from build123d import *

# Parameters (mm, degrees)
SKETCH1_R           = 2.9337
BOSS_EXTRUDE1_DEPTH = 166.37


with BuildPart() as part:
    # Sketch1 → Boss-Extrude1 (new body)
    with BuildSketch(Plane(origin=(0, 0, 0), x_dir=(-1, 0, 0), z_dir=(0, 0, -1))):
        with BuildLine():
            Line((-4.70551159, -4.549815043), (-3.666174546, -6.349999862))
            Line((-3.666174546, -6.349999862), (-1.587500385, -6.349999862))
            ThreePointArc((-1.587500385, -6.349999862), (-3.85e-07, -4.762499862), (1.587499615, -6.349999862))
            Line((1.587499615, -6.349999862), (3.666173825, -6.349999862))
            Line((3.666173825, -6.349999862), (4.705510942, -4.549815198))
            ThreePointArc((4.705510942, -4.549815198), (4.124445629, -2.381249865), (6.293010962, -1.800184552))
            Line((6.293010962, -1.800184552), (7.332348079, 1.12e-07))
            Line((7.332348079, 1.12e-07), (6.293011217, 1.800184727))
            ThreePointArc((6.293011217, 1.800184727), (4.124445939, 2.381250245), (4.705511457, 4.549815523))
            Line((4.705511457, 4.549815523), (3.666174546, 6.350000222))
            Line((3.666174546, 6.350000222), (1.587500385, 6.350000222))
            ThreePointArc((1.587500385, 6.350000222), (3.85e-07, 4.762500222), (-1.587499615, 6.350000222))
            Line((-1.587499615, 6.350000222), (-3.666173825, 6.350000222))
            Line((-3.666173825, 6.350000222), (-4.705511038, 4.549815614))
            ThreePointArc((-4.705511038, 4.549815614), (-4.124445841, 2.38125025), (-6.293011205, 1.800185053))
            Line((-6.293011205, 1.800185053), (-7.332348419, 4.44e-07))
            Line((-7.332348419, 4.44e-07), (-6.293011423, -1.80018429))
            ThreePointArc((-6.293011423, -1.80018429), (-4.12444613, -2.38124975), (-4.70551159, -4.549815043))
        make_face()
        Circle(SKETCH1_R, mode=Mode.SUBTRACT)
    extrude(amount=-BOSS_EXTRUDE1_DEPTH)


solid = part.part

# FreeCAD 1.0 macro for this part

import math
import FreeCAD as App
import Part
import Sketcher
Q = App.Units.Quantity

doc = App.newDocument("Part")
body = doc.addObject("PartDesign::Body", "Body")

# Sketch on XY plane
sketch1 = body.newObject("Sketcher::SketchObject", "Sketch")
sketch1.AttachmentSupport = (doc.getObject("XY_Plane"), [""])
sketch1.MapMode = "FlatFace"
sketch1.addGeometry([
    Part.LineSegment(App.Vector(4.7, -4.5, 0), App.Vector(3.7, -6.3, 0)),  # 0
    Part.LineSegment(App.Vector(3.7, -6.3, 0), App.Vector(1.6, -6.3, 0)),  # 1
    Part.ArcOfCircle(Part.Circle(App.Vector(0, -6.3, 0), App.Vector(0, 0, 1), 1.6), math.radians(0), math.radians(180)),  # 2
    Part.LineSegment(App.Vector(-1.6, -6.3, 0), App.Vector(-3.7, -6.3, 0)),  # 3
    Part.LineSegment(App.Vector(-3.7, -6.3, 0), App.Vector(-4.7, -4.5, 0)),  # 4
    Part.ArcOfCircle(Part.Circle(App.Vector(-5.5, -3.2, 0), App.Vector(0, 0, 1), 1.6), math.radians(-60), math.radians(120)),  # 5
    Part.LineSegment(App.Vector(-6.3, -1.8, 0), App.Vector(-7.3, 0, 0)),  # 6
    Part.LineSegment(App.Vector(-7.3, 0, 0), App.Vector(-6.3, 1.8, 0)),  # 7
    Part.ArcOfCircle(Part.Circle(App.Vector(-5.5, 3.2, 0), App.Vector(0, 0, 1), 1.6), math.radians(-120), math.radians(60)),  # 8
    Part.LineSegment(App.Vector(-4.7, 4.5, 0), App.Vector(-3.7, 6.4, 0)),  # 9
    Part.LineSegment(App.Vector(-3.7, 6.4, 0), App.Vector(-1.6, 6.4, 0)),  # 10
    Part.ArcOfCircle(Part.Circle(App.Vector(0, 6.4, 0), App.Vector(0, 0, 1), 1.6), math.radians(180), math.radians(360)),  # 11
    Part.LineSegment(App.Vector(1.6, 6.4, 0), App.Vector(3.7, 6.4, 0)),  # 12
    Part.LineSegment(App.Vector(3.7, 6.4, 0), App.Vector(4.7, 4.5, 0)),  # 13
    Part.ArcOfCircle(Part.Circle(App.Vector(5.5, 3.2, 0), App.Vector(0, 0, 1), 1.6), math.radians(120), math.radians(300)),  # 14
    Part.LineSegment(App.Vector(6.3, 1.8, 0), App.Vector(7.3, 0, 0)),  # 15
    Part.LineSegment(App.Vector(7.3, 0, 0), App.Vector(6.3, -1.8, 0)),  # 16
    Part.ArcOfCircle(Part.Circle(App.Vector(5.5, -3.2, 0), App.Vector(0, 0, 1), 1.6), math.radians(60), math.radians(240)),  # 17
    Part.Circle(App.Vector(0, 0, 0), App.Vector(0, 0, 1), 2.9),  # 18
], False)
sketch1.addConstraint([
    Sketcher.Constraint("Coincident", 0, 2, 1, 1),
    Sketcher.Constraint("Coincident", 1, 2, 2, 1),
    Sketcher.Constraint("Coincident", 2, 2, 3, 1),
    Sketcher.Constraint("Coincident", 3, 2, 4, 1),
    Sketcher.Constraint("Coincident", 4, 2, 5, 1),
    Sketcher.Constraint("Coincident", 5, 2, 6, 1),
    Sketcher.Constraint("Coincident", 6, 2, 7, 1),
    Sketcher.Constraint("Coincident", 7, 2, 8, 1),
    Sketcher.Constraint("Coincident", 8, 2, 9, 1),
    Sketcher.Constraint("Coincident", 9, 2, 10, 1),
    Sketcher.Constraint("Coincident", 10, 2, 11, 1),
    Sketcher.Constraint("Coincident", 11, 2, 12, 1),
    Sketcher.Constraint("Coincident", 12, 2, 13, 1),
    Sketcher.Constraint("Coincident", 13, 2, 14, 1),
    Sketcher.Constraint("Coincident", 14, 2, 15, 1),
    Sketcher.Constraint("Coincident", 15, 2, 16, 1),
    Sketcher.Constraint("Coincident", 16, 2, 17, 1),
    Sketcher.Constraint("Coincident", 17, 2, 0, 1),
    Sketcher.Constraint("Horizontal", 1),
    Sketcher.Constraint("Horizontal", 3),
    Sketcher.Constraint("Horizontal", 10),
    Sketcher.Constraint("Horizontal", 12),
    Sketcher.Constraint("Coincident", 18, 3, -1, 1),
    Sketcher.Constraint("Equal", 2, 5),
    Sketcher.Constraint("Equal", 5, 8),
    Sketcher.Constraint("Equal", 8, 11),
    Sketcher.Constraint("Equal", 11, 14),
    Sketcher.Constraint("Equal", 14, 17),
    Sketcher.Constraint("Symmetric", 2, 3, 11, 3, -1, 1),
    Sketcher.Constraint("Symmetric", 5, 3, 14, 3, -1, 1),
    Sketcher.Constraint("Symmetric", 8, 3, 17, 3, -1, 1),
    Sketcher.Constraint("Symmetric", 0, 2, 9, 2, -1, 1),
    Sketcher.Constraint("Symmetric", 3, 2, 12, 2, -1, 1),
    Sketcher.Constraint("Symmetric", 6, 2, 15, 2, -1, 1),
    Sketcher.Constraint("Symmetric", 8, 3, 14, 3, -2),
    Sketcher.Constraint("Symmetric", 1, 2, 2, 2, -2),
    Sketcher.Constraint("PointOnObject", 6, 2, -1),
    Sketcher.Constraint("Parallel", 4, 6),
    Sketcher.Constraint("Parallel", 0, 7),
    Sketcher.Constraint("Parallel", 7, 9),
    Sketcher.Constraint("Parallel", 6, 13),
    Sketcher.Constraint("Parallel", 13, 15),
    Sketcher.Constraint("Parallel", 9, 16),
    Sketcher.Constraint("Horizontal", 2, 3, 0, 2),
    Sketcher.Constraint("Horizontal", 8, 2, 13, 2),
    Sketcher.Constraint("Horizontal", 7, 2, 14, 2),
    Sketcher.Constraint("Equal", 4, 6),
    Sketcher.Constraint("Diameter", 18, Q("0.231 in")),
    Sketcher.Constraint("Angle", 0, Q("-119.999997 deg")),
    Sketcher.Constraint("Radius", 2, Q("0.0625 in")),
    Sketcher.Constraint("DistanceY", 2, 3, 11, 3, Q("0.5 in")),
    Sketcher.Constraint("DistanceY", 5, 3, 8, 3, Q("0.25 in")),
    Sketcher.Constraint("DistanceX", 5, 3, 4, 2, Q("0.03125 in")),
    Sketcher.Constraint("DistanceX", 1, 2, 1, 1, Q("2.078674 mm")),
])
pad1 = body.newObject("PartDesign::Pad", "Pad")
pad1.Profile = sketch1
pad1.Length = Q("6.55 in")

doc.recompute()
